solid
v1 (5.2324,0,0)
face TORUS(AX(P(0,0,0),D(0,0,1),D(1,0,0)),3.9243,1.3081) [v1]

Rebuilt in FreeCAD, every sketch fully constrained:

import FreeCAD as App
import Part
import Sketcher

V = App.Vector
Q = App.Units.Quantity

doc = App.newDocument("Part")
body = doc.addObject("PartDesign::Body", "Body")

# Sketch on YZ plane
sketch1 = doc.addObject("Sketcher::SketchObject", "Sketch")
body.addObject(sketch1)
sketch1.AttachmentSupport = (doc.YZ_Plane, [""])
sketch1.MapMode = "FlatFace"
sketch1.addGeometry(Part.Circle(V(-3.9, 0, 0), V(0, 0, 1), 1.3), False)
sketch1.addConstraint([
    Sketcher.Constraint("PointOnObject", 0, 3, -1),
    Sketcher.Constraint("Diameter", 0, Q("0.103 in")),
    Sketcher.Constraint("DistanceX", 0, 3, -1, 1, Q("0.1545 in")),
])
revolution = doc.addObject("PartDesign::Revolution", "Revolution")
body.addObject(revolution)
revolution.Profile = sketch1
revolution.ReferenceAxis = (sketch1, ["V_Axis"])
revolution.Angle = 360

doc.recompute()
